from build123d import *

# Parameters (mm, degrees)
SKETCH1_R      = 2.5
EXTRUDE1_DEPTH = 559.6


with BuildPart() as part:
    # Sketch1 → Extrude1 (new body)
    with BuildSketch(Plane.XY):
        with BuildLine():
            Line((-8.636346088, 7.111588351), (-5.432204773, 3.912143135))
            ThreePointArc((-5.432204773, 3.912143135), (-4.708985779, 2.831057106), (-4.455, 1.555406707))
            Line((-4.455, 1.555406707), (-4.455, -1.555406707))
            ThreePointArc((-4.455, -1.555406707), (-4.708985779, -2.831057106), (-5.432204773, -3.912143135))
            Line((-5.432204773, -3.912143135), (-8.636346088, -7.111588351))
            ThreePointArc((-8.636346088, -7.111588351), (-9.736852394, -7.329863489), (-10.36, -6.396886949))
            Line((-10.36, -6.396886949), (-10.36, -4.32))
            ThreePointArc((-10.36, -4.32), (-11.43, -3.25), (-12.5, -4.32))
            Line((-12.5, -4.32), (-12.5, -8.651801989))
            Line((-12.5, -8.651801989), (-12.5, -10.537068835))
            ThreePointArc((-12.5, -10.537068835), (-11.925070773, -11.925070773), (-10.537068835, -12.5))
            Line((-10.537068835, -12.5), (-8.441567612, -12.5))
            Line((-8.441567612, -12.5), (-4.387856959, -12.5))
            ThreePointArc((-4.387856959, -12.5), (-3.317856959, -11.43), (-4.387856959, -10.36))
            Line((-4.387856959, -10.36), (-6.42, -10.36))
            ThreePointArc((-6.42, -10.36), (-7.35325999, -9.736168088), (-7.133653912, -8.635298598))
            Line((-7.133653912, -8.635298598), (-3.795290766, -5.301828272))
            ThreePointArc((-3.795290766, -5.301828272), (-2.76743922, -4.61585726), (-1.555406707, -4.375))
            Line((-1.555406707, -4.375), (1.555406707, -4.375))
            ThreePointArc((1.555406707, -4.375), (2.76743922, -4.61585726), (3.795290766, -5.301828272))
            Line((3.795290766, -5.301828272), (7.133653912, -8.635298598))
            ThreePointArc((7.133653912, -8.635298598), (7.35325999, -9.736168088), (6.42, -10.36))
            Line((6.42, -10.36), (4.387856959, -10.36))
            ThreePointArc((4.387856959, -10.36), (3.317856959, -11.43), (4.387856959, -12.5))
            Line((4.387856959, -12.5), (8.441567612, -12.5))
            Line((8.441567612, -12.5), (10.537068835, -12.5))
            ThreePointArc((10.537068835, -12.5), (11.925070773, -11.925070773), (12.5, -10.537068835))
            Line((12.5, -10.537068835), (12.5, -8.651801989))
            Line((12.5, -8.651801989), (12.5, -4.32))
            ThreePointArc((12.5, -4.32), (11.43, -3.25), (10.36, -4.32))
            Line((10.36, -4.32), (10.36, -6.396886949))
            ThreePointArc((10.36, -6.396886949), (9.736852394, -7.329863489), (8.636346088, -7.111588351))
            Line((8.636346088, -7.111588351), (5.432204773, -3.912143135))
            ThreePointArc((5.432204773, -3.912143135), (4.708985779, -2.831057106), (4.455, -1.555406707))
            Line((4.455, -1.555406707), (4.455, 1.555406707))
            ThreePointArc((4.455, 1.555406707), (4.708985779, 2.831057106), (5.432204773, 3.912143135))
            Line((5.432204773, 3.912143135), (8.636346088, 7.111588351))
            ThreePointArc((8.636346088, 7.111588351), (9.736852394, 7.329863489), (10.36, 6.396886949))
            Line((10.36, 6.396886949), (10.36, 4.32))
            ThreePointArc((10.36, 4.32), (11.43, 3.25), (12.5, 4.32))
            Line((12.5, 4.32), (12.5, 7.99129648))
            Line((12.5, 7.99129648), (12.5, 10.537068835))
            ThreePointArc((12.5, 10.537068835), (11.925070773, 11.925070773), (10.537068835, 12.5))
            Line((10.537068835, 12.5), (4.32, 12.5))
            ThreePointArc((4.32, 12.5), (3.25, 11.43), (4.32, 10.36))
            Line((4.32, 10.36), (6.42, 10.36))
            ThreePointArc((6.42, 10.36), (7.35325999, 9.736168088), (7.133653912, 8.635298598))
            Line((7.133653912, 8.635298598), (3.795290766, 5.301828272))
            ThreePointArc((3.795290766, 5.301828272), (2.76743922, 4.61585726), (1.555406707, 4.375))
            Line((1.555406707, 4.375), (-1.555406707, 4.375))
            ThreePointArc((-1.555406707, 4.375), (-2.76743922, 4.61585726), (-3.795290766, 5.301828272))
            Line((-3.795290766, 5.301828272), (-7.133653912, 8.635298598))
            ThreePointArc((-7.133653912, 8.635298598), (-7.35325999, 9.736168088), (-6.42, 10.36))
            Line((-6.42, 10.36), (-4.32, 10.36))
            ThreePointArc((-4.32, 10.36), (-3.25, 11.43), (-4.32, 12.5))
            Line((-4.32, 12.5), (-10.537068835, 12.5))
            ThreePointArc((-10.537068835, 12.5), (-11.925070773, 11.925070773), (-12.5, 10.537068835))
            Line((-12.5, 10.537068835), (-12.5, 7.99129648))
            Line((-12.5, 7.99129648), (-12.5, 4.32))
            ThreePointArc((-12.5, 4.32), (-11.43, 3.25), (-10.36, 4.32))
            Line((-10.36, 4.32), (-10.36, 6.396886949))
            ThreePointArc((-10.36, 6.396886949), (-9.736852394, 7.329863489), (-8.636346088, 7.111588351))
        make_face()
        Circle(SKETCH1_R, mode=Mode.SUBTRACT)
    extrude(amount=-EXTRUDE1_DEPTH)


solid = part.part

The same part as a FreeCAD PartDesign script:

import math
import FreeCAD as App
import Part
import Sketcher
from FreeCAD import Vector
Q = App.Units.Quantity

doc = App.newDocument("Part")
body = doc.addObject("PartDesign::Body", "Body")

# Sketch on XY plane
sketch1 = body.newObject("Sketcher::SketchObject", "Sketch")
sketch1.AttachmentSupport = (doc.getObject("XY_Plane"), [""])
sketch1.MapMode = "FlatFace"
sketch1.addGeometry(Part.LineSegment(Vector(-8.636346, 7.111588, 0), Vector(-5.432205, 3.912143, 0)), False)
sketch1.addGeometry(Part.ArcOfCircle(Part.Circle(Vector(-7.785487, 1.555407, 0), Vector(0, 0, 1), 3.330487), math.radians(0), math.radians(45.042018)), False)
sketch1.addGeometry(Part.LineSegment(Vector(-4.455, 1.555407, 0), Vector(-4.455, -1.555407, 0)), False)
sketch1.addGeometry(Part.ArcOfCircle(Part.Circle(Vector(-7.785487, -1.555407, 0), Vector(0, 0, 1), 3.330487), math.radians(-45.042018), math.radians(0)), False)
sketch1.addGeometry(Part.LineSegment(Vector(-5.432205, -3.912143, 0), Vector(-8.636346, -7.111588, 0)), False)
sketch1.addGeometry(Part.ArcOfCircle(Part.Circle(Vector(-9.35, -6.396887, 0), Vector(0, 0, 1), 1.01), math.radians(-180), math.radians(-45.042018)), False)
sketch1.addGeometry(Part.LineSegment(Vector(-10.36, -6.396887, 0), Vector(-10.36, -4.32, 0)), False)
sketch1.addGeometry(Part.ArcOfCircle(Part.Circle(Vector(-11.43, -4.32, 0), Vector(0, 0, 1), 1.07), math.radians(0), math.radians(180)), False)
sketch1.addGeometry(Part.LineSegment(Vector(-12.5, -4.32, 0), Vector(-12.5, -10.537069, 0)), False)
sketch1.addGeometry(Part.ArcOfCircle(Part.Circle(Vector(-10.537069, -10.537069, 0), Vector(0, 0, 1), 1.962931), math.radians(180), math.radians(270)), False)
sketch1.addGeometry(Part.LineSegment(Vector(-10.537069, -12.5, 0), Vector(-4.387857, -12.5, 0)), False)
sketch1.addGeometry(Part.ArcOfCircle(Part.Circle(Vector(-4.387857, -11.43, 0), Vector(0, 0, 1), 1.07), math.radians(-90), math.radians(90)), False)
sketch1.addGeometry(Part.LineSegment(Vector(-4.387857, -10.36, 0), Vector(-6.42, -10.36, 0)), False)
sketch1.addGeometry(Part.ArcOfCircle(Part.Circle(Vector(-6.42, -9.35, 0), Vector(0, 0, 1), 1.01), math.radians(134.957982), math.radians(270)), False)
sketch1.addGeometry(Part.LineSegment(Vector(-7.133654, -8.635299, 0), Vector(-3.795291, -5.301828, 0)), False)
sketch1.addGeometry(Part.ArcOfCircle(Part.Circle(Vector(-1.555407, -7.545, 0), Vector(0, 0, 1), 3.17), math.radians(90), math.radians(134.957982)), False)
sketch1.addGeometry(Part.LineSegment(Vector(-1.555407, -4.375, 0), Vector(1.555407, -4.375, 0)), False)
sketch1.addGeometry(Part.ArcOfCircle(Part.Circle(Vector(1.555407, -7.545, 0), Vector(0, 0, 1), 3.17), math.radians(45.042018), math.radians(90)), False)
sketch1.addGeometry(Part.LineSegment(Vector(3.795291, -5.301828, 0), Vector(7.133654, -8.635299, 0)), False)
sketch1.addGeometry(Part.ArcOfCircle(Part.Circle(Vector(6.42, -9.35, 0), Vector(0, 0, 1), 1.01), math.radians(-90), math.radians(45.042018)), False)
sketch1.addGeometry(Part.LineSegment(Vector(6.42, -10.36, 0), Vector(4.387857, -10.36, 0)), False)
sketch1.addGeometry(Part.ArcOfCircle(Part.Circle(Vector(4.387857, -11.43, 0), Vector(0, 0, 1), 1.07), math.radians(90), math.radians(270)), False)
sketch1.addGeometry(Part.LineSegment(Vector(4.387857, -12.5, 0), Vector(10.537069, -12.5, 0)), False)
sketch1.addGeometry(Part.ArcOfCircle(Part.Circle(Vector(10.537069, -10.537069, 0), Vector(0, 0, 1), 1.962931), math.radians(-90), math.radians(0)), False)
sketch1.addGeometry(Part.LineSegment(Vector(12.5, -10.537069, 0), Vector(12.5, -4.32, 0)), False)
sketch1.addGeometry(Part.ArcOfCircle(Part.Circle(Vector(11.43, -4.32, 0), Vector(0, 0, 1), 1.07), math.radians(0), math.radians(180)), False)
sketch1.addGeometry(Part.LineSegment(Vector(10.36, -4.32, 0), Vector(10.36, -6.396887, 0)), False)
sketch1.addGeometry(Part.ArcOfCircle(Part.Circle(Vector(9.35, -6.396887, 0), Vector(0, 0, 1), 1.01), math.radians(-134.957982), math.radians(0)), False)
sketch1.addGeometry(Part.LineSegment(Vector(8.636346, -7.111588, 0), Vector(5.432205, -3.912143, 0)), False)
sketch1.addGeometry(Part.ArcOfCircle(Part.Circle(Vector(7.785487, -1.555407, 0), Vector(0, 0, 1), 3.330487), math.radians(180), math.radians(225.042018)), False)
sketch1.addGeometry(Part.LineSegment(Vector(4.455, -1.555407, 0), Vector(4.455, 1.555407, 0)), False)
sketch1.addGeometry(Part.ArcOfCircle(Part.Circle(Vector(7.785487, 1.555407, 0), Vector(0, 0, 1), 3.330487), math.radians(134.957982), math.radians(180)), False)
sketch1.addGeometry(Part.LineSegment(Vector(5.432205, 3.912143, 0), Vector(8.636346, 7.111588, 0)), False)
sketch1.addGeometry(Part.ArcOfCircle(Part.Circle(Vector(9.35, 6.396887, 0), Vector(0, 0, 1), 1.01), math.radians(0), math.radians(134.957982)), False)
sketch1.addGeometry(Part.LineSegment(Vector(10.36, 6.396887, 0), Vector(10.36, 4.32, 0)), False)
sketch1.addGeometry(Part.ArcOfCircle(Part.Circle(Vector(11.43, 4.32, 0), Vector(0, 0, 1), 1.07), math.radians(180), math.radians(360)), False)
sketch1.addGeometry(Part.LineSegment(Vector(12.5, 4.32, 0), Vector(12.5, 10.537069, 0)), False)
sketch1.addGeometry(Part.ArcOfCircle(Part.Circle(Vector(10.537069, 10.537069, 0), Vector(0, 0, 1), 1.962931), math.radians(0), math.radians(90)), False)
sketch1.addGeometry(Part.LineSegment(Vector(10.537069, 12.5, 0), Vector(4.32, 12.5, 0)), False)
sketch1.addGeometry(Part.ArcOfCircle(Part.Circle(Vector(4.32, 11.43, 0), Vector(0, 0, 1), 1.07), math.radians(90), math.radians(270)), False)
sketch1.addGeometry(Part.LineSegment(Vector(4.32, 10.36, 0), Vector(6.42, 10.36, 0)), False)
sketch1.addGeometry(Part.ArcOfCircle(Part.Circle(Vector(6.42, 9.35, 0), Vector(0, 0, 1), 1.01), math.radians(-45.042018), math.radians(90)), False)
sketch1.addGeometry(Part.LineSegment(Vector(7.133654, 8.635299, 0), Vector(3.795291, 5.301828, 0)), False)
sketch1.addGeometry(Part.ArcOfCircle(Part.Circle(Vector(1.555407, 7.545, 0), Vector(0, 0, 1), 3.17), math.radians(-90), math.radians(-45.042018)), False)
sketch1.addGeometry(Part.LineSegment(Vector(1.555407, 4.375, 0), Vector(-1.555407, 4.375, 0)), False)
sketch1.addGeometry(Part.ArcOfCircle(Part.Circle(Vector(-1.555407, 7.545, 0), Vector(0, 0, 1), 3.17), math.radians(-134.957982), math.radians(-90)), False)
sketch1.addGeometry(Part.LineSegment(Vector(-3.795291, 5.301828, 0), Vector(-7.133654, 8.635299, 0)), False)
sketch1.addGeometry(Part.ArcOfCircle(Part.Circle(Vector(-6.42, 9.35, 0), Vector(0, 0, 1), 1.01), math.radians(90), math.radians(225.042018)), False)
sketch1.addGeometry(Part.LineSegment(Vector(-6.42, 10.36, 0), Vector(-4.32, 10.36, 0)), False)
sketch1.addGeometry(Part.ArcOfCircle(Part.Circle(Vector(-4.32, 11.43, 0), Vector(0, 0, 1), 1.07), math.radians(-90), math.radians(90)), False)
sketch1.addGeometry(Part.LineSegment(Vector(-4.32, 12.5, 0), Vector(-10.537069, 12.5, 0)), False)
sketch1.addGeometry(Part.ArcOfCircle(Part.Circle(Vector(-10.537069, 10.537069, 0), Vector(0, 0, 1), 1.962931), math.radians(90), math.radians(180)), False)
sketch1.addGeometry(Part.LineSegment(Vector(-12.5, 10.537069, 0), Vector(-12.5, 4.32, 0)), False)
sketch1.addGeometry(Part.ArcOfCircle(Part.Circle(Vector(-11.43, 4.32, 0), Vector(0, 0, 1), 1.07), math.radians(180), math.radians(360)), False)
sketch1.addGeometry(Part.LineSegment(Vector(-10.36, 4.32, 0), Vector(-10.36, 6.396887, 0)), False)
sketch1.addGeometry(Part.ArcOfCircle(Part.Circle(Vector(-9.35, 6.396887, 0), Vector(0, 0, 1), 1.01), math.radians(45.042018), math.radians(180)), False)
sketch1.addGeometry(Part.Circle(Vector(0, 0, 0), Vector(0, 0, 1), 2.5), False)
sketch1.addConstraint(Sketcher.Constraint("Tangent", 0, 2, 1, 2))
sketch1.addConstraint(Sketcher.Constraint("Tangent", 1, 1, 2, 1))
sketch1.addConstraint(Sketcher.Constraint("Tangent", 2, 2, 3, 2))
sketch1.addConstraint(Sketcher.Constraint("Tangent", 3, 1, 4, 1))
sketch1.addConstraint(Sketcher.Constraint("Tangent", 4, 2, 5, 2))
sketch1.addConstraint(Sketcher.Constraint("Tangent", 5, 1, 6, 1))
sketch1.addConstraint(Sketcher.Constraint("Tangent", 6, 2, 7, 1))
sketch1.addConstraint(Sketcher.Constraint("Tangent", 7, 2, 8, 1))
sketch1.addConstraint(Sketcher.Constraint("Tangent", 8, 2, 9, 1))
sketch1.addConstraint(Sketcher.Constraint("Tangent", 9, 2, 10, 1))
sketch1.addConstraint(Sketcher.Constraint("Tangent", 10, 2, 11, 1))
sketch1.addConstraint(Sketcher.Constraint("Tangent", 11, 2, 12, 1))
sketch1.addConstraint(Sketcher.Constraint("Tangent", 12, 2, 13, 2))
sketch1.addConstraint(Sketcher.Constraint("Tangent", 13, 1, 14, 1))
sketch1.addConstraint(Sketcher.Constraint("Tangent", 14, 2, 15, 2))
sketch1.addConstraint(Sketcher.Constraint("Tangent", 15, 1, 16, 1))
sketch1.addConstraint(Sketcher.Constraint("Tangent", 16, 2, 17, 2))
sketch1.addConstraint(Sketcher.Constraint("Tangent", 17, 1, 18, 1))
sketch1.addConstraint(Sketcher.Constraint("Tangent", 18, 2, 19, 2))
sketch1.addConstraint(Sketcher.Constraint("Tangent", 19, 1, 20, 1))
sketch1.addConstraint(Sketcher.Constraint("Tangent", 20, 2, 21, 1))
sketch1.addConstraint(Sketcher.Constraint("Tangent", 21, 2, 22, 1))
sketch1.addConstraint(Sketcher.Constraint("Tangent", 22, 2, 23, 1))
sketch1.addConstraint(Sketcher.Constraint("Tangent", 23, 2, 24, 1))
sketch1.addConstraint(Sketcher.Constraint("Tangent", 24, 2, 25, 1))
sketch1.addConstraint(Sketcher.Constraint("Tangent", 25, 2, 26, 1))
sketch1.addConstraint(Sketcher.Constraint("Tangent", 26, 2, 27, 2))
sketch1.addConstraint(Sketcher.Constraint("Tangent", 27, 1, 28, 1))
sketch1.addConstraint(Sketcher.Constraint("Tangent", 28, 2, 29, 2))
sketch1.addConstraint(Sketcher.Constraint("Tangent", 29, 1, 30, 1))
sketch1.addConstraint(Sketcher.Constraint("Tangent", 30, 2, 31, 2))
sketch1.addConstraint(Sketcher.Constraint("Tangent", 31, 1, 32, 1))
sketch1.addConstraint(Sketcher.Constraint("Tangent", 32, 2, 33, 2))
sketch1.addConstraint(Sketcher.Constraint("Tangent", 33, 1, 34, 1))
sketch1.addConstraint(Sketcher.Constraint("Tangent", 34, 2, 35, 1))
sketch1.addConstraint(Sketcher.Constraint("Tangent", 35, 2, 36, 1))
sketch1.addConstraint(Sketcher.Constraint("Tangent", 36, 2, 37, 1))
sketch1.addConstraint(Sketcher.Constraint("Tangent", 37, 2, 38, 1))
sketch1.addConstraint(Sketcher.Constraint("Tangent", 38, 2, 39, 1))
sketch1.addConstraint(Sketcher.Constraint("Tangent", 39, 2, 40, 1))
sketch1.addConstraint(Sketcher.Constraint("Tangent", 40, 2, 41, 2))
sketch1.addConstraint(Sketcher.Constraint("Tangent", 41, 1, 42, 1))
sketch1.addConstraint(Sketcher.Constraint("Tangent", 42, 2, 43, 2))
sketch1.addConstraint(Sketcher.Constraint("Tangent", 43, 1, 44, 1))
sketch1.addConstraint(Sketcher.Constraint("Tangent", 44, 2, 45, 2))
sketch1.addConstraint(Sketcher.Constraint("Tangent", 45, 1, 46, 1))
sketch1.addConstraint(Sketcher.Constraint("Tangent", 46, 2, 47, 2))
sketch1.addConstraint(Sketcher.Constraint("Tangent", 47, 1, 48, 1))
sketch1.addConstraint(Sketcher.Constraint("Tangent", 48, 2, 49, 1))
sketch1.addConstraint(Sketcher.Constraint("Tangent", 49, 2, 50, 1))
sketch1.addConstraint(Sketcher.Constraint("Tangent", 50, 2, 51, 1))
sketch1.addConstraint(Sketcher.Constraint("Tangent", 51, 2, 52, 1))
sketch1.addConstraint(Sketcher.Constraint("Tangent", 52, 2, 53, 1))
sketch1.addConstraint(Sketcher.Constraint("Tangent", 53, 2, 54, 1))
sketch1.addConstraint(Sketcher.Constraint("Tangent", 54, 2, 55, 2))
sketch1.addConstraint(Sketcher.Constraint("Tangent", 55, 1, 0, 1))
sketch1.addConstraint(Sketcher.Constraint("Vertical", 2))
sketch1.addConstraint(Sketcher.Constraint("Vertical", 6))
sketch1.addConstraint(Sketcher.Constraint("Vertical", 8))
sketch1.addConstraint(Sketcher.Constraint("Horizontal", 10))
sketch1.addConstraint(Sketcher.Constraint("Horizontal", 12))
sketch1.addConstraint(Sketcher.Constraint("Horizontal", 16))
sketch1.addConstraint(Sketcher.Constraint("Horizontal", 20))
sketch1.addConstraint(Sketcher.Constraint("Horizontal", 22))
sketch1.addConstraint(Sketcher.Constraint("Vertical", 24))
sketch1.addConstraint(Sketcher.Constraint("Vertical", 26))
sketch1.addConstraint(Sketcher.Constraint("Vertical", 30))
sketch1.addConstraint(Sketcher.Constraint("Vertical", 34))
sketch1.addConstraint(Sketcher.Constraint("Vertical", 36))
sketch1.addConstraint(Sketcher.Constraint("Horizontal", 38))
sketch1.addConstraint(Sketcher.Constraint("Horizontal", 40))
sketch1.addConstraint(Sketcher.Constraint("Horizontal", 44))
sketch1.addConstraint(Sketcher.Constraint("Horizontal", 48))
sketch1.addConstraint(Sketcher.Constraint("Horizontal", 50))
sketch1.addConstraint(Sketcher.Constraint("Vertical", 52))
sketch1.addConstraint(Sketcher.Constraint("Vertical", 54))
sketch1.addConstraint(Sketcher.Constraint("Coincident", 56, 3, -1, 1))
sketch1.addConstraint(Sketcher.Constraint("Equal", 1, 3))
sketch1.addConstraint(Sketcher.Constraint("Equal", 7, 11))
sketch1.addConstraint(Sketcher.Constraint("Equal", 5, 13))
sketch1.addConstraint(Sketcher.Constraint("Equal", 15, 17))
sketch1.addConstraint(Sketcher.Constraint("Equal", 13, 19))
sketch1.addConstraint(Sketcher.Constraint("Equal", 11, 21))
sketch1.addConstraint(Sketcher.Constraint("Equal", 9, 23))
sketch1.addConstraint(Sketcher.Constraint("Equal", 21, 25))
sketch1.addConstraint(Sketcher.Constraint("Equal", 19, 27))
sketch1.addConstraint(Sketcher.Constraint("Equal", 3, 29))
sketch1.addConstraint(Sketcher.Constraint("Equal", 29, 31))
sketch1.addConstraint(Sketcher.Constraint("Equal", 27, 33))
sketch1.addConstraint(Sketcher.Constraint("Equal", 25, 35))
sketch1.addConstraint(Sketcher.Constraint("Equal", 23, 37))
sketch1.addConstraint(Sketcher.Constraint("Equal", 35, 39))
sketch1.addConstraint(Sketcher.Constraint("Equal", 33, 41))
sketch1.addConstraint(Sketcher.Constraint("Equal", 17, 43))
sketch1.addConstraint(Sketcher.Constraint("Equal", 43, 45))
sketch1.addConstraint(Sketcher.Constraint("Equal", 41, 47))
sketch1.addConstraint(Sketcher.Constraint("Equal", 39, 49))
sketch1.addConstraint(Sketcher.Constraint("Equal", 37, 51))
sketch1.addConstraint(Sketcher.Constraint("Equal", 49, 53))
sketch1.addConstraint(Sketcher.Constraint("Equal", 47, 55))
sketch1.addConstraint(Sketcher.Constraint("Symmetric", 1, 3, 29, 3, -1, 1))
sketch1.addConstraint(Sketcher.Constraint("Symmetric", 5, 3, 33, 3, -1, 1))
sketch1.addConstraint(Sketcher.Constraint("Symmetric", 13, 3, 41, 3, -1, 1))
sketch1.addConstraint(Sketcher.Constraint("Symmetric", 15, 3, 43, 3, -1, 1))
sketch1.addConstraint(Sketcher.Constraint("Symmetric", 19, 3, 47, 3, -1, 1))
sketch1.addConstraint(Sketcher.Constraint("Symmetric", 25, 3, 53, 3, -1, 1))
sketch1.addConstraint(Sketcher.Constraint("Symmetric", 13, 3, 19, 3, -2))
sketch1.addConstraint(Sketcher.Constraint("Symmetric", 7, 3, 25, 3, -2))
sketch1.addConstraint(Sketcher.Constraint("Symmetric", 4, 2, 27, 1, -2))
sketch1.addConstraint(Sketcher.Constraint("Symmetric", 0, 2, 31, 1, -2))
sketch1.addConstraint(Sketcher.Constraint("Parallel", 4, 14))
sketch1.addConstraint(Sketcher.Constraint("Parallel", 0, 18))
sketch1.addConstraint(Sketcher.Constraint("Parallel", 28, 46))
sketch1.addConstraint(Sketcher.Constraint("Horizontal", 35, 3, 53, 3))
sketch1.addConstraint(Sketcher.Constraint("Equal", 12, 20))
sketch1.addConstraint(Sketcher.Constraint("Equal", 40, 48))
sketch1.addConstraint(Sketcher.Constraint("Equal", 44, 2))
sketch1.addConstraint(Sketcher.Constraint("Equal", 50, 8))
sketch1.addConstraint(Sketcher.Constraint("Diameter", 56, Q("5 mm")))
sketch1.addConstraint(Sketcher.Constraint("Radius", 5, Q("1.01 mm")))
sketch1.addConstraint(Sketcher.Constraint("Radius", 7, Q("1.07 mm")))
sketch1.addConstraint(Sketcher.Constraint("Radius", 15, Q("3.17 mm")))
sketch1.addConstraint(Sketcher.Constraint("DistanceX", 40, 1, 40, 2, Q("2.1 mm")))
sketch1.addConstraint(Sketcher.Constraint("DistanceX", 7, 2, -1, 1, Q("12.5 mm")))
sketch1.addConstraint(Sketcher.Constraint("DistanceY", 9, 2, -1, 1, Q("12.5 mm")))
sketch1.addConstraint(Sketcher.Constraint("DistanceY", 7, 3, -1, 1, Q("4.32 mm")))
sketch1.addConstraint(Sketcher.Constraint("Radius", 9, Q("1.962931 mm")))
sketch1.addConstraint(Sketcher.Constraint("DistanceY", 15, 3, -1, 1, Q("7.545 mm")))
sketch1.addConstraint(Sketcher.Constraint("DistanceX", 1, 1, -1, 1, Q("4.455 mm")))
sketch1.addConstraint(Sketcher.Constraint("Radius", 1, Q("3.330487 mm")))
sketch1.addConstraint(Sketcher.Constraint("Distance", 14, Q("4.7177 mm")))
sketch1.addConstraint(Sketcher.Constraint("DistanceX", 10, 1, 10, 2, Q("6.149212 mm")))
pad1 = body.newObject("PartDesign::Pad", "Pad")
pad1.Profile = sketch1
pad1.Length = 559.6
pad1.Reversed = True

doc.recompute()
